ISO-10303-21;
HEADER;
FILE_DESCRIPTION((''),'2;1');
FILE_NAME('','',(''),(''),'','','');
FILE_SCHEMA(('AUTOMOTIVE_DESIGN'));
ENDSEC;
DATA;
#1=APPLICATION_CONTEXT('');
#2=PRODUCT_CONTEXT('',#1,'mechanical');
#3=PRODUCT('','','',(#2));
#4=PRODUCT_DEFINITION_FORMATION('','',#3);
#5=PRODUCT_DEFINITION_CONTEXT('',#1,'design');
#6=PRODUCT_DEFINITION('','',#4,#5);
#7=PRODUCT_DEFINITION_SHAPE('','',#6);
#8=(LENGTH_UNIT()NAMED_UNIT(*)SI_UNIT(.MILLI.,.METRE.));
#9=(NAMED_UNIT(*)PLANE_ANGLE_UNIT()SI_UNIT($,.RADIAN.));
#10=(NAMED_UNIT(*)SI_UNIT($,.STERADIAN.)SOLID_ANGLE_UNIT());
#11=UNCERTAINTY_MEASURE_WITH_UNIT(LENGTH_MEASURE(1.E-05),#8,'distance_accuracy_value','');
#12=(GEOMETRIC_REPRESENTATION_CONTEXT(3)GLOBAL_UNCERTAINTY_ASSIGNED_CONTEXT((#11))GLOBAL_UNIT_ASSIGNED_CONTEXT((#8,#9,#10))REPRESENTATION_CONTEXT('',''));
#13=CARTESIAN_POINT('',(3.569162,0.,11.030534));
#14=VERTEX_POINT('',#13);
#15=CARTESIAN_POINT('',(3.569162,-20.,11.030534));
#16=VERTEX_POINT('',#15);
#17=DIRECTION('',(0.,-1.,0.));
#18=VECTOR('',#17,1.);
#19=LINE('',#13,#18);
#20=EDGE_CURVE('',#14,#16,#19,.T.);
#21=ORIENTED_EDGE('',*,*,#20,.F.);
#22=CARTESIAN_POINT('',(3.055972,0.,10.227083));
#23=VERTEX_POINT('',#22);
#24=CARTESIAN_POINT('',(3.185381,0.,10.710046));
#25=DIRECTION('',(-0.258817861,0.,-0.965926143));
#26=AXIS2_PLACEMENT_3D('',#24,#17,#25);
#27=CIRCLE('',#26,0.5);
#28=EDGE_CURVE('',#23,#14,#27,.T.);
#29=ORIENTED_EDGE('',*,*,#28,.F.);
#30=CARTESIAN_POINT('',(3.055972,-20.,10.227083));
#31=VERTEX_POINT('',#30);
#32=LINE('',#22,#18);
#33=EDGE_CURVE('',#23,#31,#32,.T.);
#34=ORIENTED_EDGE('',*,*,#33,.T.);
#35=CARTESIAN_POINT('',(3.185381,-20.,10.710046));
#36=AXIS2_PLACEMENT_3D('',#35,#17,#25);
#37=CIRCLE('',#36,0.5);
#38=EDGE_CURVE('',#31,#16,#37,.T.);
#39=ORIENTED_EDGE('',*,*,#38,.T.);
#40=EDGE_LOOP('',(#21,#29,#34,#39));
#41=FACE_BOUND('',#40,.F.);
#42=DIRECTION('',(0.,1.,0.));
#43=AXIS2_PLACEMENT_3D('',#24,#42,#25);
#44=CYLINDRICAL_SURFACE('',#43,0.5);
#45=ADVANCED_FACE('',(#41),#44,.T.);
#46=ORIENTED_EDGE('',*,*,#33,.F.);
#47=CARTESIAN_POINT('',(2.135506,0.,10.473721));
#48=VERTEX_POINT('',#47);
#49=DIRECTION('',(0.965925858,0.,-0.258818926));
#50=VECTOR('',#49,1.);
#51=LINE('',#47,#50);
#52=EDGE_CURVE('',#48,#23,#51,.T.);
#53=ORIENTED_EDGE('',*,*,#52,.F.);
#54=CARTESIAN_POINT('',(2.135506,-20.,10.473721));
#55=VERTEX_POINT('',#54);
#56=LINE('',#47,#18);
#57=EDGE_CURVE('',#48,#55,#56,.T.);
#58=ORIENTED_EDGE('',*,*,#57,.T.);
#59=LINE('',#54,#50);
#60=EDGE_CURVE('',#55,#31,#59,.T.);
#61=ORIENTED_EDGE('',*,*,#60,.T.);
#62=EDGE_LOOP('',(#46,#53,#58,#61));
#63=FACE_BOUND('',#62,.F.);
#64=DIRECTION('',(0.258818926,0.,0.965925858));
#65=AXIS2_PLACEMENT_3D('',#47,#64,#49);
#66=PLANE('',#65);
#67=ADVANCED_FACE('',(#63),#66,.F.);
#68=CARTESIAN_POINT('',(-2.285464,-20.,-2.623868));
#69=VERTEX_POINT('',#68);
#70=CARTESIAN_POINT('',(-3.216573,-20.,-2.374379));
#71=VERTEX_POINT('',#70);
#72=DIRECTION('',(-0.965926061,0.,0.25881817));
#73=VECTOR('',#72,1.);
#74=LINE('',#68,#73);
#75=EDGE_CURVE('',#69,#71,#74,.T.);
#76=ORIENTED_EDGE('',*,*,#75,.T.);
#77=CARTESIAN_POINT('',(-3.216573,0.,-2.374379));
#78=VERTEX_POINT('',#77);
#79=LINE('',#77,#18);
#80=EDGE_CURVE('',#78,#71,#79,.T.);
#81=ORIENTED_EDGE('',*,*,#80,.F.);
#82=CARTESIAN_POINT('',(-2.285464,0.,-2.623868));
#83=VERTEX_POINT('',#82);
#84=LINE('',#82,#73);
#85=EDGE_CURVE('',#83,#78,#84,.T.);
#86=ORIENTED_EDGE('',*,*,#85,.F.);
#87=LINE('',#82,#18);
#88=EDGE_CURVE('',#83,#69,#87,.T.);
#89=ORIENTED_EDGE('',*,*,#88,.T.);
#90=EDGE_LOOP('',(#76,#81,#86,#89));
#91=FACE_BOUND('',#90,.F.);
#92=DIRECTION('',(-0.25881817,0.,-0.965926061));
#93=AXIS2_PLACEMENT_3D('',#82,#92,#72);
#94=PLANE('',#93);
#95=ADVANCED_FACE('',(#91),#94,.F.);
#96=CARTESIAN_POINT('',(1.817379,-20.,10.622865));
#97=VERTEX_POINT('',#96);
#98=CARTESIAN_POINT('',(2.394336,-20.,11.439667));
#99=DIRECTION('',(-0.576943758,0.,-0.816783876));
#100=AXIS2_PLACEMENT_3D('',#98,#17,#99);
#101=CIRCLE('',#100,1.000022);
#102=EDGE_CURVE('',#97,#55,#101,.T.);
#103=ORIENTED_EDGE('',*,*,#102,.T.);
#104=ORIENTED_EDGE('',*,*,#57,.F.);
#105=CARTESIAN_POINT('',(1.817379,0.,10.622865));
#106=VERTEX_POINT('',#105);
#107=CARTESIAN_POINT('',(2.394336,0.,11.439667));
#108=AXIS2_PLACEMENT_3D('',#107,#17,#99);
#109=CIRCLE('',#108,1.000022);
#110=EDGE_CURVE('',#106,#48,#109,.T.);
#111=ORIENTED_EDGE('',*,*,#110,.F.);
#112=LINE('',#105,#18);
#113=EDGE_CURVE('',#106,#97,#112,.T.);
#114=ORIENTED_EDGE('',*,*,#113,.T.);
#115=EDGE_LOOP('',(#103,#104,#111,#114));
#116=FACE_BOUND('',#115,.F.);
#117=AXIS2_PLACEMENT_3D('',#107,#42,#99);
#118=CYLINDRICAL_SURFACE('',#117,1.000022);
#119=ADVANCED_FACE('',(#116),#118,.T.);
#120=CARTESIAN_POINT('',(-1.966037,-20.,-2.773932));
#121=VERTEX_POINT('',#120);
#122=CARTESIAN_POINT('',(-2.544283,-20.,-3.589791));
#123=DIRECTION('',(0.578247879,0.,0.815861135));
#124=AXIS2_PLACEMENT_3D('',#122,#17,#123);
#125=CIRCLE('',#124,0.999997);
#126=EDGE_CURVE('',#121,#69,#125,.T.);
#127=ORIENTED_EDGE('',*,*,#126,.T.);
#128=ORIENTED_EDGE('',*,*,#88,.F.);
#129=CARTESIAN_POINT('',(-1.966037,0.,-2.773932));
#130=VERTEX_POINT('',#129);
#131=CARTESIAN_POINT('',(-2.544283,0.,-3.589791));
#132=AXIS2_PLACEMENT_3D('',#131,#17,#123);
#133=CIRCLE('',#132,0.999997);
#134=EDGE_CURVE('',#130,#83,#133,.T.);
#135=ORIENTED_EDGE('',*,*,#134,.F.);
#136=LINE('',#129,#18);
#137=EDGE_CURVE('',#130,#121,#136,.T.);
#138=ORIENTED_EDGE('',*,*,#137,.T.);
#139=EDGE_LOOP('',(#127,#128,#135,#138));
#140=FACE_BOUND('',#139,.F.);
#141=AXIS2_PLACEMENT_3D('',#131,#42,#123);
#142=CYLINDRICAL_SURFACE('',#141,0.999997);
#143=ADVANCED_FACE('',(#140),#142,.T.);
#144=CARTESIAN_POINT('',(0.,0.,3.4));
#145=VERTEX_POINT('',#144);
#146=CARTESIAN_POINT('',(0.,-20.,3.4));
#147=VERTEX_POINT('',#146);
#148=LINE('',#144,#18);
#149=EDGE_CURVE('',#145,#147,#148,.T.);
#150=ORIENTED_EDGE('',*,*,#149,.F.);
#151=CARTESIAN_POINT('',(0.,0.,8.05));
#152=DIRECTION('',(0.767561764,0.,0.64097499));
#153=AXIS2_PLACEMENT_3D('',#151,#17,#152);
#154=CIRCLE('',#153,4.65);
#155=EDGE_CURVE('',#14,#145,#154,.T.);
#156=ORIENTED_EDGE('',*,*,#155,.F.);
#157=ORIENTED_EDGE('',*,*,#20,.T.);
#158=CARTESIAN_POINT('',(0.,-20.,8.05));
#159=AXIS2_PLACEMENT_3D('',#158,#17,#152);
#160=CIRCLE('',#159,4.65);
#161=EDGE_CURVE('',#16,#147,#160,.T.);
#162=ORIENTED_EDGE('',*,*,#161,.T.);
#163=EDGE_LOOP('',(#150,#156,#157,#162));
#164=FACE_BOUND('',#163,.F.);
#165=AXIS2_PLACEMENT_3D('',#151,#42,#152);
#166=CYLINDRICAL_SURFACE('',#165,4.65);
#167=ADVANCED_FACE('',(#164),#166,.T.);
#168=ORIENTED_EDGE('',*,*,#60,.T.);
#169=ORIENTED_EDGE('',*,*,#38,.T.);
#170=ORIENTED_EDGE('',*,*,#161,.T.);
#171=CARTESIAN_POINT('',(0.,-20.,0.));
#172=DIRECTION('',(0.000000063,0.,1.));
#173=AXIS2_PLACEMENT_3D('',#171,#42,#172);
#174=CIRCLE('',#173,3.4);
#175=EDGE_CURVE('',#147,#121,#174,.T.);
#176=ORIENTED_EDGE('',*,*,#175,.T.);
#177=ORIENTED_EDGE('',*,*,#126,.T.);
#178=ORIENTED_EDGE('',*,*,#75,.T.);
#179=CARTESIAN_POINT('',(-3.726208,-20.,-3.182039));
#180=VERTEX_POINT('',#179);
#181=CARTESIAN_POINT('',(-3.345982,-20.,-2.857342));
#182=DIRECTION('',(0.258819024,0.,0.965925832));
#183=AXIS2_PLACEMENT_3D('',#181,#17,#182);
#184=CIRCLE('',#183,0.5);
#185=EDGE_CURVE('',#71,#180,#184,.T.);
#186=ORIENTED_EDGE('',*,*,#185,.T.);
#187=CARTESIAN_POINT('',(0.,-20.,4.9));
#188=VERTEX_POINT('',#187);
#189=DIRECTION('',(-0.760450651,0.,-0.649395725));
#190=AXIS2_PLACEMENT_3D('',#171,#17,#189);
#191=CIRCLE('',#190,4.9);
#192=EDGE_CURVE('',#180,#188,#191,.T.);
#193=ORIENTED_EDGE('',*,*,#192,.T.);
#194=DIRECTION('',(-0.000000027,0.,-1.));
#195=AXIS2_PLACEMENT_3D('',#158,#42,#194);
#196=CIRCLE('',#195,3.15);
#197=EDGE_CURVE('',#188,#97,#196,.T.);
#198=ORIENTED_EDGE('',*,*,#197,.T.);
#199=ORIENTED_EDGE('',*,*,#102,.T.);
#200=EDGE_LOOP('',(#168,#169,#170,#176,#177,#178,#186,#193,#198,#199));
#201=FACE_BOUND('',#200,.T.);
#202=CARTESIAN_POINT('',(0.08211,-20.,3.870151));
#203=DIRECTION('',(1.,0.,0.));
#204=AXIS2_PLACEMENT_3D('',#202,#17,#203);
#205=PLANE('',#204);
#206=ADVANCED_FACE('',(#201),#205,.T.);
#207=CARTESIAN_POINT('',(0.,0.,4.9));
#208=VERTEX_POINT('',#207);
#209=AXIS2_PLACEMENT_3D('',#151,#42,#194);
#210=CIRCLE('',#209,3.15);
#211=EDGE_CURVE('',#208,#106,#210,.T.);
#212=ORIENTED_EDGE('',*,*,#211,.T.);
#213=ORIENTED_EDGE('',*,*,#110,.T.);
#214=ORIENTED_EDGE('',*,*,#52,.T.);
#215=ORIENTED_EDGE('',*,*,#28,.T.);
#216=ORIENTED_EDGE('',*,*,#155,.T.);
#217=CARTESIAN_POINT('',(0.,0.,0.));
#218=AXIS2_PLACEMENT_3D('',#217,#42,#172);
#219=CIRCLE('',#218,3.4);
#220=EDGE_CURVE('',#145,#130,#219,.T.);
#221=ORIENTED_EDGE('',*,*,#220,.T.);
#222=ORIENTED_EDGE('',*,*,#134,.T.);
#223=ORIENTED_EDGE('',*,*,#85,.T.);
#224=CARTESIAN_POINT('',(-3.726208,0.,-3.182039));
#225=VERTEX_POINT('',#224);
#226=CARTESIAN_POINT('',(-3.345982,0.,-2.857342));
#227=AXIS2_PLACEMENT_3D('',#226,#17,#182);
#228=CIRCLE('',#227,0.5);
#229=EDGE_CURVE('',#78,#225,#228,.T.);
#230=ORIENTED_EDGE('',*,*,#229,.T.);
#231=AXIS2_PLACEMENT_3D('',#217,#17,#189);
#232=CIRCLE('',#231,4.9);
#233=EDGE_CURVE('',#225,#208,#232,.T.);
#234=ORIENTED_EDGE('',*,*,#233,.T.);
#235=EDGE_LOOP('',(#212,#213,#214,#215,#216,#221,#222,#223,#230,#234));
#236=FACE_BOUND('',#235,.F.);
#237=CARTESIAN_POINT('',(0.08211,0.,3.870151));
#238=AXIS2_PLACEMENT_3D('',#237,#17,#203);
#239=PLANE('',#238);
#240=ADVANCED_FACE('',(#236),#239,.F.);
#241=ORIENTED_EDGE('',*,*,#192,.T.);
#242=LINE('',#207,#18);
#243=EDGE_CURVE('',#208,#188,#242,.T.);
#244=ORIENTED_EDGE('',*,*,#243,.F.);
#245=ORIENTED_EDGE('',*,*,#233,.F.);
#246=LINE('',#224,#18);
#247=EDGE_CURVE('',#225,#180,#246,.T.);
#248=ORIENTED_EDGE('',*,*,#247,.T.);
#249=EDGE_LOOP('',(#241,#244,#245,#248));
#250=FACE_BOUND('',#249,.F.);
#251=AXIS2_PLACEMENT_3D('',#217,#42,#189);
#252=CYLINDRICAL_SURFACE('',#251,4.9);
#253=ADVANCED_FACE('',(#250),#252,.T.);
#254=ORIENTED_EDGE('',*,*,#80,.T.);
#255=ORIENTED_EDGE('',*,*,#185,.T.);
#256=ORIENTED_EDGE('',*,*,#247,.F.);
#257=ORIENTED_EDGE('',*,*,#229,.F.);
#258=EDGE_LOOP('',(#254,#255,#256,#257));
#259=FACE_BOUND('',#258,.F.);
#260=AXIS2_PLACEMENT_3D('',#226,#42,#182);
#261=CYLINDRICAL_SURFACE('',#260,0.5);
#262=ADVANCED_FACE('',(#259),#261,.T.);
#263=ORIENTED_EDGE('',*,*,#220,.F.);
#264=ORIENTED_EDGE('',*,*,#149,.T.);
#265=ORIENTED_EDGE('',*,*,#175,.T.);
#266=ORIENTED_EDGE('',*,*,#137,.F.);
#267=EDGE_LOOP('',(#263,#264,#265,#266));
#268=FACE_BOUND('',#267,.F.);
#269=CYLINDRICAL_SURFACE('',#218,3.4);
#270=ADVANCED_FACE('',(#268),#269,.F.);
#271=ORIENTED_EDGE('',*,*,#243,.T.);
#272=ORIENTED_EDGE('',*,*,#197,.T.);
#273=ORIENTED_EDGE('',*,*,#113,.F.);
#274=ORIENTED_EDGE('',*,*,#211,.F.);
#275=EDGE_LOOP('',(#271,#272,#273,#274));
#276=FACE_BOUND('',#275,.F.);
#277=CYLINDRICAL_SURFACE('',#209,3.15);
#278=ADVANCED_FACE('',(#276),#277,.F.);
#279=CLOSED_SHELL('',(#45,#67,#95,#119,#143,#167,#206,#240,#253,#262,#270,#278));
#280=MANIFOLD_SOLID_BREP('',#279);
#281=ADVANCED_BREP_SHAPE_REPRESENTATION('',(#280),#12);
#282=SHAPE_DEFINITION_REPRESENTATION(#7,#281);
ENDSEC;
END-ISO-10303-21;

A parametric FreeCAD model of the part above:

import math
import FreeCAD as App
import Part
import Sketcher
from FreeCAD import Vector
Q = App.Units.Quantity

doc = App.newDocument("Part")
body = doc.addObject("PartDesign::Body", "Body")

sketch1 = body.newObject("Sketcher::SketchObject", "Sketch")
sketch1.AttachmentSupport = (doc.getObject("XZ_Plane"), [""])
sketch1.MapMode = "FlatFace"
sketch1.addGeometry([
    Part.ArcOfCircle(Part.Circle(Vector(0, 0, 0), Vector(0, 0, 1), 3.4), math.radians(-125.327279), math.radians(89.999996)),
    Part.ArcOfCircle(Part.Circle(Vector(-2.544283, -3.589791, 0), Vector(0, 0, 1), 0.999997), math.radians(54.672598), math.radians(74.99995)),
    Part.LineSegment(Vector(-2.285464, -2.623868, 0), Vector(-3.216573, -2.374379, 0)),
    Part.ArcOfCircle(Part.Circle(Vector(-3.345982, -2.857342, 0), Vector(0, 0, 1), 0.5), math.radians(75.000001), math.radians(220.495991)),
    Part.ArcOfCircle(Part.Circle(Vector(0, 0, 0), Vector(0, 0, 1), 4.9), math.radians(-139.503942), math.radians(90.000002)),
    Part.ArcOfCircle(Part.Circle(Vector(0, 8.05, 0), Vector(0, 0, 1), 3.15), math.radians(54.763996), math.radians(269.999998)),
    Part.ArcOfCircle(Part.Circle(Vector(2.394336, 11.439667, 0), Vector(0, 0, 1), 1.000022), math.radians(-125.235869), math.radians(-105.000289)),
    Part.LineSegment(Vector(2.135506, 10.473721, 0), Vector(3.055972, 10.227083, 0)),
    Part.ArcOfCircle(Part.Circle(Vector(3.185381, 10.710046, 0), Vector(0, 0, 1), 0.5), math.radians(-104.99993), math.radians(39.86457)),
    Part.ArcOfCircle(Part.Circle(Vector(0, 8.05, 0), Vector(0, 0, 1), 4.65), math.radians(39.864561), math.radians(270.000004)),
], False)
sketch1.addConstraint([
    Sketcher.Constraint("Coincident", 0, 1, 1, 1),
    Sketcher.Constraint("Tangent", 1, 2, 2, 1),
    Sketcher.Constraint("Tangent", 2, 2, 3, 1),
    Sketcher.Constraint("Tangent", 3, 2, 4, 1),
    Sketcher.Constraint("Tangent", 4, 2, 5, 2),
    Sketcher.Constraint("Coincident", 5, 1, 6, 1),
    Sketcher.Constraint("Coincident", 6, 2, 7, 1),
    Sketcher.Constraint("Tangent", 7, 2, 8, 1),
    Sketcher.Constraint("Tangent", 8, 2, 9, 1),
    Sketcher.Constraint("Tangent", 9, 2, 0, 2),
    Sketcher.Constraint("Coincident", 0, 3, -1, 1),
    Sketcher.Constraint("Coincident", 4, 3, -1, 1),
    Sketcher.Constraint("Coincident", 9, 3, 5, 3),
    Sketcher.Constraint("Equal", 3, 8),
    Sketcher.Constraint("PointOnObject", 5, 3, -2),
    Sketcher.Constraint("Parallel", 2, 7),
    Sketcher.Constraint("Radius", 0, 3.4),
    Sketcher.Constraint("Radius", 3, 0.5),
    Sketcher.Constraint("Radius", 4, 4.9),
    Sketcher.Constraint("Angle", 7, Q("-14.999993 deg")),
    Sketcher.Constraint("Radius", 5, 3.15),
    Sketcher.Constraint("Radius", 1, 0.999997),
    Sketcher.Constraint("Radius", 6, 1.000022),
    Sketcher.Constraint("DistanceX", 5, 1, 8, 3, 1.368002),
    Sketcher.Constraint("DistanceX", 3, 3, 1, 3, 0.801699),
    Sketcher.Constraint("DistanceX", -1, 1, 8, 3, 3.185381),
    Sketcher.Constraint("DistanceY", 0, 1, -1, 1, 2.773932),
    Sketcher.Constraint("DistanceY", -1, 1, 6, 2, 10.473721),
])
pad1 = body.newObject("PartDesign::Pad", "Pad")
pad1.Profile = sketch1
pad1.Length = 20

doc.recompute()
